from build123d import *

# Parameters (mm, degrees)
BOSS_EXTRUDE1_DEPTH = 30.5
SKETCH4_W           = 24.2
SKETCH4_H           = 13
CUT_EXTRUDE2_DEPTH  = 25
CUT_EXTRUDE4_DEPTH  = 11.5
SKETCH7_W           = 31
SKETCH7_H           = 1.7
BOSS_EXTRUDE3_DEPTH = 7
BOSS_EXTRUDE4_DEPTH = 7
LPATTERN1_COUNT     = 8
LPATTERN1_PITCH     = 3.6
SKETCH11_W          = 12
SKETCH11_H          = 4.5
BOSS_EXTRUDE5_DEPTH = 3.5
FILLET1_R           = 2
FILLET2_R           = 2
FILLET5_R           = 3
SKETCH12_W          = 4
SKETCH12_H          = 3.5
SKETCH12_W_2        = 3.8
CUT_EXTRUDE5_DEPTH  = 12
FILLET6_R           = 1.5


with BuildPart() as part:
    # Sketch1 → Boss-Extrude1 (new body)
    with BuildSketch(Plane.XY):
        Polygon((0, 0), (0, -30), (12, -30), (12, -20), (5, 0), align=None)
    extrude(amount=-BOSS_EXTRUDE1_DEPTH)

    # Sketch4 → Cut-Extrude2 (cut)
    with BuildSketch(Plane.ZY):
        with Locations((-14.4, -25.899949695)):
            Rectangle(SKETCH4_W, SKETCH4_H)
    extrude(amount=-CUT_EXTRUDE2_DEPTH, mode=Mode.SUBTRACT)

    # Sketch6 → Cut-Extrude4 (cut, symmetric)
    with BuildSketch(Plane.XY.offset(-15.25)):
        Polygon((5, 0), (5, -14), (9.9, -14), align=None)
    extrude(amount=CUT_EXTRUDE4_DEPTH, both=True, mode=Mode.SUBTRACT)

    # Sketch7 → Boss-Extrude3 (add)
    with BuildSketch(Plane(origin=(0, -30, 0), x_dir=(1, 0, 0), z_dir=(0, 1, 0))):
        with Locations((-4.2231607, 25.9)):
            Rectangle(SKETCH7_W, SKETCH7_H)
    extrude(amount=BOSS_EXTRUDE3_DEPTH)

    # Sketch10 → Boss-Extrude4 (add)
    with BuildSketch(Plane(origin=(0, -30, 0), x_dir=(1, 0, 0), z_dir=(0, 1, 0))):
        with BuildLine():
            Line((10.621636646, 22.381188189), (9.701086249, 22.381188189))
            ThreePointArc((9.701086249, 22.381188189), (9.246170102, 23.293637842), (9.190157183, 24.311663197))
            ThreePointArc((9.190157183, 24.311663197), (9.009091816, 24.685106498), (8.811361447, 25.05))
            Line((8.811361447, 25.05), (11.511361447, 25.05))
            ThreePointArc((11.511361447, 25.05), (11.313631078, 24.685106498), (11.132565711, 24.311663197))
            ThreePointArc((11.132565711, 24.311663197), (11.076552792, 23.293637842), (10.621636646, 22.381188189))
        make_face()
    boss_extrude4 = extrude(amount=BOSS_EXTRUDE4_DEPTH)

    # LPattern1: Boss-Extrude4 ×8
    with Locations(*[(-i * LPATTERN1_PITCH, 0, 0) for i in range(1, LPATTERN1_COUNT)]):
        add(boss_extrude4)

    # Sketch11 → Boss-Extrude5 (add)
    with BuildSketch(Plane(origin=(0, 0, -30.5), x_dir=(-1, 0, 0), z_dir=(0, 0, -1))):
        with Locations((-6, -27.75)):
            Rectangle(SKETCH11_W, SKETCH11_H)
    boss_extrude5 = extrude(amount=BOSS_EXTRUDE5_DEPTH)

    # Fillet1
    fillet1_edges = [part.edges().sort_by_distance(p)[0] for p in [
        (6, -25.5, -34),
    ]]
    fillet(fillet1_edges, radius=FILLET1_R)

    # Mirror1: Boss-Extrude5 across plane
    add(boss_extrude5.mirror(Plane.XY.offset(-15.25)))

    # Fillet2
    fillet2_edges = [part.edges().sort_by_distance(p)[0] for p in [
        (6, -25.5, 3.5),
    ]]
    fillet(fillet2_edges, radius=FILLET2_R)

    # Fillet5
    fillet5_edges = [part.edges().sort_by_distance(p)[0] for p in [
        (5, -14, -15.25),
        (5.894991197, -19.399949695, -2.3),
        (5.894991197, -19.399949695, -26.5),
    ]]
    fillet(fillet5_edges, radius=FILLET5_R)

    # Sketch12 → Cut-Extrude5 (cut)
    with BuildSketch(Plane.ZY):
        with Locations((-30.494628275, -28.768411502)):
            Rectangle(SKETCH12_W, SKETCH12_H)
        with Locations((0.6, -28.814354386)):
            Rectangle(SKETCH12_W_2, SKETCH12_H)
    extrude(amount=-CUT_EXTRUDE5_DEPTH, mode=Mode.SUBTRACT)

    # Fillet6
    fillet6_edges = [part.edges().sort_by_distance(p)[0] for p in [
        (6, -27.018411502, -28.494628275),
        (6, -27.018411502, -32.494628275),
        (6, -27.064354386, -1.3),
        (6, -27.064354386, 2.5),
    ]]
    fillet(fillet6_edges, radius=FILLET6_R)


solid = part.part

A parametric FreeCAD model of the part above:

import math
import FreeCAD as App
import Part
import Sketcher

V = App.Vector


def edges_at(feature, points):
    """Names of the edges that pass closest to the given points."""
    edges = feature.Shape.Edges
    near = lambda p: min(range(len(edges)), key=lambda i: edges[i].distToShape(Part.Vertex(*p))[0])
    return sorted({f"Edge{near(p) + 1}" for p in points})


def add_polygon(sketch, points):
    """Adds a closed chain of lines whose ends are joined by coincident constraints."""
    first, n = sketch.GeometryCount, len(points)
    for a, b in zip(points, points[1:] + points[:1]):
        sketch.addGeometry(Part.LineSegment(App.Vector(*a, 0), App.Vector(*b, 0)), False)
    for i in range(n):
        sketch.addConstraint(Sketcher.Constraint("Coincident", first + i, 2, first + (i + 1) % n, 1))

doc = App.newDocument("Part")
body = doc.addObject("PartDesign::Body", "Body")

# Sketch on XY plane
sketch1 = doc.addObject("Sketcher::SketchObject", "Sketch")
body.addObject(sketch1)
sketch1.AttachmentSupport = (doc.XY_Plane, [""])
sketch1.MapMode = "FlatFace"
add_polygon(sketch1, [(0, 0), (0, -30), (12, -30), (12, -20), (5, 0)])  # lines 0-4
sketch1.addConstraint([
    Sketcher.Constraint("Vertical", 0),
    Sketcher.Constraint("Horizontal", 1),
    Sketcher.Constraint("Vertical", 2),
    Sketcher.Constraint("Horizontal", 4),
    Sketcher.Constraint("Coincident", 4, 2, -1, 1),
    Sketcher.Constraint("DistanceX", 1, 1, 1, 2, 12.0),
    Sketcher.Constraint("DistanceX", 4, 2, 4, 1, 5.0),
    Sketcher.Constraint("DistanceY", 0, 2, 0, 1, 30.0),
    Sketcher.Constraint("DistanceY", 2, 1, 2, 2, 10.0),
])
pad1 = doc.addObject("PartDesign::Pad", "Pad")
body.addObject(pad1)
pad1.Profile = sketch1
pad1.Length = 30.5
pad1.Reversed = True

# Sketch on YZ plane
sketch2 = doc.addObject("Sketcher::SketchObject", "Sketch001")
body.addObject(sketch2)
sketch2.AttachmentSupport = (doc.YZ_Plane, [""])
sketch2.MapMode = "FlatFace"
add_polygon(sketch2, [(-19.39995, -26.5), (-32.39995, -26.5), (-32.39995, -2.3), (-19.39995, -2.3)])  # lines 0-3
sketch2.addConstraint([
    Sketcher.Constraint("Horizontal", 0),
    Sketcher.Constraint("Vertical", 1),
    Sketcher.Constraint("Horizontal", 2),
    Sketcher.Constraint("Vertical", 3),
    Sketcher.Constraint("DistanceX", 0, 2, 0, 1, 13.0),
    Sketcher.Constraint("DistanceY", 1, 1, 1, 2, 24.2),
    Sketcher.Constraint("DistanceY", 0, 2, -1, 1, 26.5),
    Sketcher.Constraint("DistanceX", 0, 2, -1, 1, 32.39995),
])
pocket1 = doc.addObject("PartDesign::Pocket", "Pocket")
body.addObject(pocket1)
pocket1.Profile = sketch2
pocket1.Length = 25
pocket1.Reversed = True

# Sketch on XY plane
sketch3 = doc.addObject("Sketcher::SketchObject", "Sketch002")
body.addObject(sketch3)
sketch3.AttachmentSupport = (doc.XY_Plane, [""])
sketch3.MapMode = "FlatFace"
sketch3.AttachmentOffset = App.Placement(V(0, 0, -15.25), App.Rotation())
add_polygon(sketch3, [(5, 0), (5, -14), (9.9, -14)])  # lines 0-2
sketch3.addConstraint([
    Sketcher.Constraint("Vertical", 0),
    Sketcher.Constraint("Horizontal", 1),
    Sketcher.Constraint("PointOnObject", 2, 2, -1),
    Sketcher.Constraint("DistanceY", 0, 2, 0, 1, 14.0),
    Sketcher.Constraint("DistanceX", 1, 1, 1, 2, 4.9),
    Sketcher.Constraint("DistanceX", -1, 1, 0, 2, 5.0),
])
pocket2 = doc.addObject("PartDesign::Pocket", "Pocket001")
body.addObject(pocket2)
pocket2.Profile = sketch3
pocket2.Length = 23
pocket2.Midplane = True

# Sketch on XZ plane
sketch4 = doc.addObject("Sketcher::SketchObject", "Sketch003")
body.addObject(sketch4)
sketch4.AttachmentSupport = (doc.XZ_Plane, [""])
sketch4.MapMode = "FlatFace"
sketch4.AttachmentOffset = App.Placement(V(0, 0, 30), App.Rotation())
add_polygon(sketch4, [(-19.723161, -26.75), (-19.723161, -25.05), (11.276839, -25.05), (11.276839, -26.75)])  # lines 0-3
sketch4.addConstraint([
    Sketcher.Constraint("Vertical", 0),
    Sketcher.Constraint("Horizontal", 1),
    Sketcher.Constraint("Vertical", 2),
    Sketcher.Constraint("Horizontal", 3),
    Sketcher.Constraint("DistanceX", 1, 1, 1, 2, 31.0),
    Sketcher.Constraint("DistanceY", 0, 1, 0, 2, 1.7),
    Sketcher.Constraint("DistanceY", 0, 2, -1, 1, 25.05),
    Sketcher.Constraint("DistanceX", 0, 2, -1, 1, 19.723161),
])
pad2 = doc.addObject("PartDesign::Pad", "Pad001")
body.addObject(pad2)
pad2.Profile = sketch4
pad2.Length = 7
pad2.Reversed = True

# Sketch on XZ plane
sketch5 = doc.addObject("Sketcher::SketchObject", "Sketch004")
body.addObject(sketch5)
sketch5.AttachmentSupport = (doc.XZ_Plane, [""])
sketch5.MapMode = "FlatFace"
sketch5.AttachmentOffset = App.Placement(V(0, 0, 30), App.Rotation())
sketch5.addGeometry([
    Part.LineSegment(V(9.701086, -22.381188, 0), V(10.621637, -22.381188, 0)),  # 0
    Part.ArcOfCircle(Part.Circle(V(8.641214, -23.938187, 0), V(0, 0, 1), 2.51919), math.radians(-8.52568), math.radians(38.174257)),  # 1
    Part.ArcOfCircle(Part.Circle(V(19.495733, -20.487367, 0), V(0, 0, 1), 9.196075), math.radians(-155.426405), math.radians(-150.25439)),  # 2
    Part.LineSegment(V(11.511361, -25.05, 0), V(8.811361, -25.05, 0)),  # 3
    Part.ArcOfCircle(Part.Circle(V(0.82699, -20.487367, 0), V(0, 0, 1), 9.196075), math.radians(-29.74561), math.radians(-24.573595)),  # 4
    Part.ArcOfCircle(Part.Circle(V(11.681509, -23.938187, 0), V(0, 0, 1), 2.51919), math.radians(141.825743), math.radians(188.52568)),  # 5
], False)
sketch5.addConstraint([
    Sketcher.Constraint("Coincident", 0, 2, 1, 2),
    Sketcher.Constraint("Coincident", 1, 1, 2, 1),
    Sketcher.Constraint("Coincident", 2, 2, 3, 1),
    Sketcher.Constraint("Coincident", 3, 2, 4, 1),
    Sketcher.Constraint("Coincident", 4, 2, 5, 2),
    Sketcher.Constraint("Coincident", 5, 1, 0, 1),
    Sketcher.Constraint("Horizontal", 0),
    Sketcher.Constraint("Horizontal", 3),
    Sketcher.Constraint("Equal", 2, 4),
    Sketcher.Constraint("Equal", 1, 5),
    Sketcher.Constraint("Horizontal", 2, 3, 4, 3),
    Sketcher.Constraint("Horizontal", 1, 3, 5, 3),
    Sketcher.Constraint("Horizontal", 1, 1, 4, 2),
    Sketcher.Constraint("DistanceX", 3, 2, 3, 1, 2.7),
    Sketcher.Constraint("DistanceY", 2, 2, -1, 1, 25.05),
    Sketcher.Constraint("Radius", 1, 2.51919),
    Sketcher.Constraint("Radius", 2, 9.196075),
    Sketcher.Constraint("DistanceY", 5, 3, 0, 2, 1.556998),
    Sketcher.Constraint("DistanceX", 0, 1, 0, 2, 0.92055),
    Sketcher.Constraint("DistanceX", -1, 1, 4, 3, 0.82699),
    Sketcher.Constraint("DistanceX", -1, 1, 5, 3, 11.681509),
    Sketcher.Constraint("DistanceY", 0, 2, -1, 1, 22.381188),
])
pad3 = doc.addObject("PartDesign::Pad", "Pad002")
body.addObject(pad3)
pad3.Profile = sketch5
pad3.Length = 7
pad3.Reversed = True
doc.recompute()

linearpattern = doc.addObject("PartDesign::LinearPattern", "LinearPattern")
body.addObject(linearpattern)
linearpattern.Originals = [pad3]
linearpattern.Direction = (doc.X_Axis, [""])
linearpattern.Mode = "offset"
linearpattern.Offset = 3.6
linearpattern.Occurrences = 8
linearpattern.Reversed = True
body.Tip = linearpattern

# Sketch on XY plane
sketch6 = doc.addObject("Sketcher::SketchObject", "Sketch005")
body.addObject(sketch6)
sketch6.AttachmentSupport = (doc.XY_Plane, [""])
sketch6.MapMode = "FlatFace"
sketch6.AttachmentOffset = App.Placement(V(0, 0, -30.5), App.Rotation())
add_polygon(sketch6, [(12, -25.5), (12, -30), (0, -30), (0, -25.5)])  # lines 0-3
sketch6.addConstraint([
    Sketcher.Constraint("Vertical", 0),
    Sketcher.Constraint("Horizontal", 1),
    Sketcher.Constraint("Vertical", 2),
    Sketcher.Constraint("Horizontal", 3),
    Sketcher.Constraint("PointOnObject", 1, 2, -2),
    Sketcher.Constraint("DistanceX", 1, 2, 1, 1, 12.0),
    Sketcher.Constraint("DistanceY", 0, 2, 0, 1, 4.5),
    Sketcher.Constraint("DistanceY", 0, 2, -1, 1, 30.0),
])
pad4 = doc.addObject("PartDesign::Pad", "Pad003")
body.addObject(pad4)
pad4.Profile = sketch6
pad4.Length = 3.5
pad4.Reversed = True
doc.recompute()

fillet = doc.addObject("PartDesign::Fillet", "Fillet")
body.addObject(fillet)
fillet.Base = (pad4, edges_at(pad4, [(6, -25.5, -34)]))
fillet.Radius = 2
doc.recompute()

datumplane = doc.addObject("PartDesign::Plane", "DatumPlane")
body.addObject(datumplane)
datumplane.AttachmentSupport = (doc.XY_Plane, [""])
datumplane.MapMode = "FlatFace"
datumplane.AttachmentOffset = App.Placement(V(0, 0, -15.25), App.Rotation())
mirrored = doc.addObject("PartDesign::Mirrored", "Mirrored")
body.addObject(mirrored)
mirrored.Originals = [pad4]
mirrored.MirrorPlane = (datumplane, [""])
body.Tip = mirrored
doc.recompute()

fillet2 = doc.addObject("PartDesign::Fillet", "Fillet001")
body.addObject(fillet2)
fillet2.Base = (mirrored, edges_at(mirrored, [(6, -25.5, 3.5)]))
fillet2.Radius = 2
doc.recompute()

fillet3 = doc.addObject("PartDesign::Fillet", "Fillet002")
body.addObject(fillet3)
fillet3.Base = (fillet2, edges_at(fillet2, [(5, -14, -15.25), (5.895, -19.4, -2.3), (5.895, -19.4, -26.5)]))
fillet3.Radius = 3

# Sketch on YZ plane
sketch7 = doc.addObject("Sketcher::SketchObject", "Sketch006")
body.addObject(sketch7)
sketch7.AttachmentSupport = (doc.YZ_Plane, [""])
sketch7.MapMode = "FlatFace"
add_polygon(sketch7, [(-27.018412, -32.494628), (-30.518412, -32.494628), (-30.518412, -28.494628), (-27.018412, -28.494628)])  # lines 0-3
add_polygon(sketch7, [(-27.064354, -1.3), (-30.564354, -1.3), (-30.564354, 2.5), (-27.064354, 2.5)])  # lines 4-7
sketch7.addConstraint([
    Sketcher.Constraint("Horizontal", 0),
    Sketcher.Constraint("Vertical", 1),
    Sketcher.Constraint("Horizontal", 2),
    Sketcher.Constraint("Vertical", 3),
    Sketcher.Constraint("Horizontal", 4),
    Sketcher.Constraint("Vertical", 5),
    Sketcher.Constraint("Horizontal", 6),
    Sketcher.Constraint("Vertical", 7),
    Sketcher.Constraint("Equal", 2, 4),
    Sketcher.Constraint("DistanceY", 1, 1, 1, 2, 4.0),
    Sketcher.Constraint("DistanceX", 0, 2, 0, 1, 3.5),
    Sketcher.Constraint("DistanceY", 5, 1, 5, 2, 3.8),
    Sketcher.Constraint("DistanceY", 4, 2, -1, 1, 1.3),
    Sketcher.Constraint("DistanceX", 0, 2, -1, 1, 30.518412),
    Sketcher.Constraint("DistanceY", 0, 2, -1, 1, 32.494628),
    Sketcher.Constraint("DistanceX", 4, 2, -1, 1, 30.564354),
])
pocket3 = doc.addObject("PartDesign::Pocket", "Pocket002")
body.addObject(pocket3)
pocket3.Profile = sketch7
pocket3.Length = 12
pocket3.Reversed = True
doc.recompute()

fillet4 = doc.addObject("PartDesign::Fillet", "Fillet003")
body.addObject(fillet4)
fillet4.Base = (pocket3, edges_at(pocket3, [
    (6, -27.018, -28.495),
    (6, -27.018, -32.495),
    (6, -27.064, -1.3),
    (6, -27.064, 2.5),
]))
fillet4.Radius = 1.5

doc.recompute()
